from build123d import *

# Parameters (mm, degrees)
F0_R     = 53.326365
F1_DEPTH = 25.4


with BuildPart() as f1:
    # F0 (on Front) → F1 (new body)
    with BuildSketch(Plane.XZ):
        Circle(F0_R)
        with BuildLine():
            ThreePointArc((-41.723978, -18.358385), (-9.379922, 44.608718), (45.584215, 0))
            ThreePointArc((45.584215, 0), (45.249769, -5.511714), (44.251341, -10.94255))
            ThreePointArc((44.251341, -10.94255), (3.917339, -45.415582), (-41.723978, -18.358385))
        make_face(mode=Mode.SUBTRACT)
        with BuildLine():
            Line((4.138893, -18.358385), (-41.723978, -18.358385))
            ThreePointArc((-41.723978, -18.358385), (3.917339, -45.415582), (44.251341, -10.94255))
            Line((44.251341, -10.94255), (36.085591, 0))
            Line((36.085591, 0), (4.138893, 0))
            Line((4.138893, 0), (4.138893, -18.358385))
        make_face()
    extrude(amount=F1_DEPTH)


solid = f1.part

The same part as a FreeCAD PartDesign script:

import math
import FreeCAD as App
import Part
import Sketcher

V = App.Vector
Q = App.Units.Quantity

doc = App.newDocument("Part")
body = doc.addObject("PartDesign::Body", "Body")

# Sketch on XZ plane
sketch1 = body.newObject("Sketcher::SketchObject", "Sketch")
sketch1.AttachmentSupport = (doc.getObject("XZ_Plane"), [""])
sketch1.MapMode = "FlatFace"
sketch1.addGeometry(Part.Circle(V(0, 0, 0), V(0, 0, 1), 53), False)
sketch1.addGeometry(Part.ArcOfCircle(Part.Circle(V(0, 0, 0), V(0, 0, 1), 46), math.radians(-13.89), math.radians(0)), False)
sketch1.addGeometry(Part.LineSegment(V(44, -11, 0), V(36, 0, 0)), False)
sketch1.addGeometry(Part.LineSegment(V(36, 0, 0), V(4, 0, 0)), False)
sketch1.addGeometry(Part.LineSegment(V(4, 0, 0), V(4, -18, 0)), False)
sketch1.addGeometry(Part.LineSegment(V(4, -18, 0), V(-42, -18, 0)), False)
sketch1.addGeometry(Part.ArcOfCircle(Part.Circle(V(0, 0, 0), V(0, 0, 1), 46), math.radians(0), math.radians(204)), False)
sketch1.addConstraint(Sketcher.Constraint("Coincident", 1, 1, 2, 1))
sketch1.addConstraint(Sketcher.Constraint("Coincident", 2, 2, 3, 1))
sketch1.addConstraint(Sketcher.Constraint("Coincident", 3, 2, 4, 1))
sketch1.addConstraint(Sketcher.Constraint("Coincident", 4, 2, 5, 1))
sketch1.addConstraint(Sketcher.Constraint("Coincident", 5, 2, 6, 2))
sketch1.addConstraint(Sketcher.Constraint("Tangent", 6, 1, 1, 2))
sketch1.addConstraint(Sketcher.Constraint("Horizontal", 3))
sketch1.addConstraint(Sketcher.Constraint("Vertical", 4))
sketch1.addConstraint(Sketcher.Constraint("Horizontal", 5))
sketch1.addConstraint(Sketcher.Constraint("Coincident", 0, 3, -1, 1))
sketch1.addConstraint(Sketcher.Constraint("Coincident", 6, 3, -1, 1))
sketch1.addConstraint(Sketcher.Constraint("PointOnObject", 2, 2, -1))
sketch1.addConstraint(Sketcher.Constraint("PointOnObject", 6, 1, -1))
sketch1.addConstraint(Sketcher.Constraint("Diameter", 0, Q("106.65273 mm")))
sketch1.addConstraint(Sketcher.Constraint("DistanceX", 3, 2, 3, 1, Q("31.946698 mm")))
sketch1.addConstraint(Sketcher.Constraint("Radius", 1, Q("45.584264 mm")))
sketch1.addConstraint(Sketcher.Constraint("Radius", 6, Q("45.584215 mm")))
sketch1.addConstraint(Sketcher.Constraint("DistanceX", 5, 2, 5, 1, Q("45.862871 mm")))
sketch1.addConstraint(Sketcher.Constraint("Distance", 2, Q("13.65353 mm")))
sketch1.addConstraint(Sketcher.Constraint("DistanceY", 4, 2, 4, 1, Q("18.358385 mm")))
pad1 = body.newObject("PartDesign::Pad", "Pad")
pad1.Profile = sketch1
pad1.Length = Q("1 in")

doc.recompute()
